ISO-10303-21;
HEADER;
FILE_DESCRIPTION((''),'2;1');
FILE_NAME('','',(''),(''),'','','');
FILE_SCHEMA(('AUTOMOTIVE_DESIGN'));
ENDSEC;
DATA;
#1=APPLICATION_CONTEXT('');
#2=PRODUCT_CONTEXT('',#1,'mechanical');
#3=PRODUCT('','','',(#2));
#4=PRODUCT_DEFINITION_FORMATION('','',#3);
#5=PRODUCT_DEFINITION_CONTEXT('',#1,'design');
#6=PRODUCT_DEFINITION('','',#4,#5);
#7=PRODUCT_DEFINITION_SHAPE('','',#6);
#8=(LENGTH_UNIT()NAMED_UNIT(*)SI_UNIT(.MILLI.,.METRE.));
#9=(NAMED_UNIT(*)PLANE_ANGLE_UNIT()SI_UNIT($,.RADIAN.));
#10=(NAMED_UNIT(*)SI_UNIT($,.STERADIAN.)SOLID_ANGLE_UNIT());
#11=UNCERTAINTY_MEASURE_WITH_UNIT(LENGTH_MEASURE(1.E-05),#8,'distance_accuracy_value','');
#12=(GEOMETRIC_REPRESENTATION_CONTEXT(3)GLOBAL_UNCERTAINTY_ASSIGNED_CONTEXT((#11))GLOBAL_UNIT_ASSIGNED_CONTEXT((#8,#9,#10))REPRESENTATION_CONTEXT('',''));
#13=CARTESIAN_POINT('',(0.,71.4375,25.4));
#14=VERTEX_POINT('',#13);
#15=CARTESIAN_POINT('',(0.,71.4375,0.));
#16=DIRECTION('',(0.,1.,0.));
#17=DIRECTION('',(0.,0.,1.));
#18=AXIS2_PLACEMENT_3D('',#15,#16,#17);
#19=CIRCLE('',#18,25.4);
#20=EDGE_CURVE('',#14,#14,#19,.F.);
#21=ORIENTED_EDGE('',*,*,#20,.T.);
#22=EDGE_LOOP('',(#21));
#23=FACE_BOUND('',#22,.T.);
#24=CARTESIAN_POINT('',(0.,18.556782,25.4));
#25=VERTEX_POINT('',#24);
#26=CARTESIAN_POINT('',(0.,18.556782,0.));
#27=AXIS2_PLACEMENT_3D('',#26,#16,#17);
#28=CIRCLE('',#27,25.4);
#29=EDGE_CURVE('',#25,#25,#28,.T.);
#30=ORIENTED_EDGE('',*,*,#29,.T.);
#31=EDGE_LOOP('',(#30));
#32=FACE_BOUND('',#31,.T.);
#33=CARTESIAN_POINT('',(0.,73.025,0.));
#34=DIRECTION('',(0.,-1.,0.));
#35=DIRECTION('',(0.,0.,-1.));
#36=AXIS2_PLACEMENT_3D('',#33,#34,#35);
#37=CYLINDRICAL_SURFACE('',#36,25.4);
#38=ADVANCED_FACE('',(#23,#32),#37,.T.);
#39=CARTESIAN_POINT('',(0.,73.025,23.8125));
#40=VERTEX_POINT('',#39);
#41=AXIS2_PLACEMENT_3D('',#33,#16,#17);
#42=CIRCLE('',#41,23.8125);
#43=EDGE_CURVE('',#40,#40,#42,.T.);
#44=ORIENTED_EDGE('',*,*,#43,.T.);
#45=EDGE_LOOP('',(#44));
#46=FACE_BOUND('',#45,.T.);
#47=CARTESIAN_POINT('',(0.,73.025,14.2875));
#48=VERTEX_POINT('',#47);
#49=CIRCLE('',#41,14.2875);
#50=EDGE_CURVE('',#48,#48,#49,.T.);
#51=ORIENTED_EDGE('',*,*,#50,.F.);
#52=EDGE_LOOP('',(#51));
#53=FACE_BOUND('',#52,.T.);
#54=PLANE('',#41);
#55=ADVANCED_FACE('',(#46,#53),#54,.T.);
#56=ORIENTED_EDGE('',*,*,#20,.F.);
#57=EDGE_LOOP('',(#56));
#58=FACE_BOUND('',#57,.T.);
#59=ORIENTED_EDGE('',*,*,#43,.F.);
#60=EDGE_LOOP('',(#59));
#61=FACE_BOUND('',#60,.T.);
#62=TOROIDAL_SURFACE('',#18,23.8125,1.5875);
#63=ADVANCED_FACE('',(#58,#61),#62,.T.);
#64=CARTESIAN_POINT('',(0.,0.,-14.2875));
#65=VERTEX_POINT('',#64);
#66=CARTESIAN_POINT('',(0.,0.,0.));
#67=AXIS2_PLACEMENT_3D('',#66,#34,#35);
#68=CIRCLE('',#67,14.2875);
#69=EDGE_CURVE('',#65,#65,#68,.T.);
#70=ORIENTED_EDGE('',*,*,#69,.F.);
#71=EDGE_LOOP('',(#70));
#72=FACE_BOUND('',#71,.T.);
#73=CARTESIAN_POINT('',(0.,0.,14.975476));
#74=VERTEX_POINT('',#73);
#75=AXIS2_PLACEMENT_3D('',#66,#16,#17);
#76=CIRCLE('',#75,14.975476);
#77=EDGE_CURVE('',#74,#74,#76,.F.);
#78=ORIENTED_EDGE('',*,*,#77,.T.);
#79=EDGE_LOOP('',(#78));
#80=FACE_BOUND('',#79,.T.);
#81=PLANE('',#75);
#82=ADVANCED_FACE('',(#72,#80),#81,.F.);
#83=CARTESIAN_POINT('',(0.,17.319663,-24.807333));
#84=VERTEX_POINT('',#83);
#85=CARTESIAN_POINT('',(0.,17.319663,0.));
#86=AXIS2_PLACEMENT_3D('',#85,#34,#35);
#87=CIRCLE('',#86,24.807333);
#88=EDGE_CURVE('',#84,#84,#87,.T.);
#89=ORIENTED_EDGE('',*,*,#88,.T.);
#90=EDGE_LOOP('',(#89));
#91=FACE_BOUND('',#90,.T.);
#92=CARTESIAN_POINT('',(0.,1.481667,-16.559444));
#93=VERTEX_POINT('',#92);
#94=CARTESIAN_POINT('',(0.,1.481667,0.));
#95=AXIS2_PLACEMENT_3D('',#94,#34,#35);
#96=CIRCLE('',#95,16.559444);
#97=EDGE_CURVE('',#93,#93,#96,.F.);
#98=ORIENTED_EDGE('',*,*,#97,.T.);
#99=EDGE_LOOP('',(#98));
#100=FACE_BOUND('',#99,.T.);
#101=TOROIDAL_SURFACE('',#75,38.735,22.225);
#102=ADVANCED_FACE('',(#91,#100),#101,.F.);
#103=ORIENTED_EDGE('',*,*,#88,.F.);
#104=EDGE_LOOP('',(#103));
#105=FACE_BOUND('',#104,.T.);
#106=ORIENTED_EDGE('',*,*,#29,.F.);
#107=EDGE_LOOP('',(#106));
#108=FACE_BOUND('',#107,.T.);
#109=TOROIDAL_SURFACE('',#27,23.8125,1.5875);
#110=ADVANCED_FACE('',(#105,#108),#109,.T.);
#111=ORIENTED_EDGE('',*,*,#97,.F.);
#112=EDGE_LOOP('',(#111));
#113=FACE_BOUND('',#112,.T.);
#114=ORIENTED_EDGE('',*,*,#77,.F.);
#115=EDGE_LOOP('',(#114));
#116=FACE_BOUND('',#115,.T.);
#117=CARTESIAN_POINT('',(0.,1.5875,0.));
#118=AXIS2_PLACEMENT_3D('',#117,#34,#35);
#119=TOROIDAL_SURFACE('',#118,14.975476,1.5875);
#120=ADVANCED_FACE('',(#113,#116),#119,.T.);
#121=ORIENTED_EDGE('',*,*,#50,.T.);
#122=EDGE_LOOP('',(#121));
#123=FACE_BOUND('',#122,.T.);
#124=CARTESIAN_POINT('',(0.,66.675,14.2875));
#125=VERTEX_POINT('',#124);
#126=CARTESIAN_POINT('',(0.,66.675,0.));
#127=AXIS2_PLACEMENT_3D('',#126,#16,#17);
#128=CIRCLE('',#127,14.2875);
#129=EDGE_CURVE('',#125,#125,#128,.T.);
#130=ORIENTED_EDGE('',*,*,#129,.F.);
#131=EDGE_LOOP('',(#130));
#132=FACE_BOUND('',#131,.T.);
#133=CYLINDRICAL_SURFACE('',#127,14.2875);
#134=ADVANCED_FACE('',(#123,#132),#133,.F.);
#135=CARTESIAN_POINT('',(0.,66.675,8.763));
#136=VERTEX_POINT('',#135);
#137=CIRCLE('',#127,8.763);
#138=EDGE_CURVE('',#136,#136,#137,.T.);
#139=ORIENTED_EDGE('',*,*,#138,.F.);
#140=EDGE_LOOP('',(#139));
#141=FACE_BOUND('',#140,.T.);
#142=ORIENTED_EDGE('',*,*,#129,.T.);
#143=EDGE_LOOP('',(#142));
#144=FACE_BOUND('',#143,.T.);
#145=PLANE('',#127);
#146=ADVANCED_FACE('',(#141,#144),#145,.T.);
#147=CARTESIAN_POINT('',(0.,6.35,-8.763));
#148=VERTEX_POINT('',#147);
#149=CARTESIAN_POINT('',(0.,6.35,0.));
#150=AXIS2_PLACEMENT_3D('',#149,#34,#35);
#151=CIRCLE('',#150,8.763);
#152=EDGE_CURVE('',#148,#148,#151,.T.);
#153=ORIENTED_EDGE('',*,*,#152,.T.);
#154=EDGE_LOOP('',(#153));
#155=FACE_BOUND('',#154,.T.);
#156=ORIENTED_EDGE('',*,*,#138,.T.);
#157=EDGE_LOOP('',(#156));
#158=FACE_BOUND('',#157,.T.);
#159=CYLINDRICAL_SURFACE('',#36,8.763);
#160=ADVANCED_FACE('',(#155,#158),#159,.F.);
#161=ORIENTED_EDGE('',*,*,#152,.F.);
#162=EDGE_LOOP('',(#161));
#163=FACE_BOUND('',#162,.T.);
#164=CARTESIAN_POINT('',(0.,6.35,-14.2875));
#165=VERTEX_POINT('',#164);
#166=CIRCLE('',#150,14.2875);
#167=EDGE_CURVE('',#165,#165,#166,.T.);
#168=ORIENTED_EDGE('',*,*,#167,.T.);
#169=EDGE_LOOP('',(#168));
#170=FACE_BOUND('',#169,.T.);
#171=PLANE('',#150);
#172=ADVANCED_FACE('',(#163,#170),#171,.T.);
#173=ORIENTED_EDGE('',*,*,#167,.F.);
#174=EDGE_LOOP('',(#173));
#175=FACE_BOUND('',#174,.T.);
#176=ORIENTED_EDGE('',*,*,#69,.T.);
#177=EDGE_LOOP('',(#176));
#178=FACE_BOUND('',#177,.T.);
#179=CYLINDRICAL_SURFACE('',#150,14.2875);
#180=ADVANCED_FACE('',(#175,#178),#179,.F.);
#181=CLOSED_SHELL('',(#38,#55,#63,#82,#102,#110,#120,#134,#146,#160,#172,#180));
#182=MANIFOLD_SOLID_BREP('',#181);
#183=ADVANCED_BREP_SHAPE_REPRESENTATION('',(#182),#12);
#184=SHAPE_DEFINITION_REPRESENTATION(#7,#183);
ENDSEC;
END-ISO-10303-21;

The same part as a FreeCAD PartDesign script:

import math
import FreeCAD as App
import Part
import Sketcher

V = App.Vector
Q = App.Units.Quantity


def edges_at(feature, points):
    """Names of the edges that pass closest to the given points."""
    edges = feature.Shape.Edges
    near = lambda p: min(range(len(edges)), key=lambda i: edges[i].distToShape(Part.Vertex(*p))[0])
    return sorted({f"Edge{near(p) + 1}" for p in points})

doc = App.newDocument("Part")
body = doc.addObject("PartDesign::Body", "Body")

sketch1 = doc.addObject("Sketcher::SketchObject", "Sketch")
body.addObject(sketch1)
sketch1.AttachmentSupport = (doc.XZ_Plane, [""])
sketch1.MapMode = "FlatFace"
sketch1.addGeometry(Part.Circle(V(0, 0, 0), V(0, 0, 1), 25), False)
sketch1.addConstraint([
    Sketcher.Constraint("Coincident", 0, 3, -1, 1),
    Sketcher.Constraint("Diameter", 0, Q("2 in")),
])
pad1 = doc.addObject("PartDesign::Pad", "Pad")
body.addObject(pad1)
pad1.Profile = sketch1
pad1.Length = Q("2.875 in")
pad1.Reversed = True

sketch2 = doc.addObject("Sketcher::SketchObject", "Sketch001")
body.addObject(sketch2)
sketch2.AttachmentSupport = (doc.XZ_Plane, [""])
sketch2.MapMode = "FlatFace"
sketch2.AttachmentOffset = App.Placement(V(0, 0, -2.875 * 25.4), App.Rotation())
sketch2.addGeometry(Part.Circle(V(0, 0, 0), V(0, 0, 1), 14), False)
sketch2.addConstraint([
    Sketcher.Constraint("Coincident", 0, 3, -1, 1),
    Sketcher.Constraint("Diameter", 0, Q("1.125 in")),
])
pocket1 = doc.addObject("PartDesign::Pocket", "Pocket")
body.addObject(pocket1)
pocket1.Profile = sketch2
pocket1.Length = Q("0.25 in")
pocket1.Reversed = True

sketch3 = doc.addObject("Sketcher::SketchObject", "Sketch002")
body.addObject(sketch3)
sketch3.AttachmentSupport = (doc.XZ_Plane, [""])
sketch3.MapMode = "FlatFace"
sketch3.AttachmentOffset = App.Placement(V(0, 0, -0.25 * 25.4), App.Rotation())
sketch3.addGeometry(Part.Circle(V(0, 0, 0), V(0, 0, 1), 14), False)
sketch3.addConstraint([
    Sketcher.Constraint("Coincident", 0, 3, -1, 1),
    Sketcher.Constraint("Diameter", 0, Q("1.125 in")),
])
pocket2 = doc.addObject("PartDesign::Pocket", "Pocket001")
body.addObject(pocket2)
pocket2.Profile = sketch3
pocket2.Length = Q("0.25 in")
pocket2.Reversed = True

sketch4 = doc.addObject("Sketcher::SketchObject", "Sketch003")
body.addObject(sketch4)
sketch4.AttachmentSupport = (doc.XZ_Plane, [""])
sketch4.MapMode = "FlatFace"
sketch4.AttachmentOffset = App.Placement(V(0, 0, -0.25 * 25.4), App.Rotation())
sketch4.addGeometry(Part.Circle(V(0, 0, 0), V(0, 0, 1), 9), False)
sketch4.addConstraint([
    Sketcher.Constraint("Coincident", 0, 3, -1, 1),
    Sketcher.Constraint("Diameter", 0, Q("0.69 in")),
])
pocket3 = doc.addObject("PartDesign::Pocket", "Pocket002")
body.addObject(pocket3)
pocket3.Profile = sketch4
pocket3.Type = "ThroughAll"
pocket3.Midplane = True

sketch5 = doc.addObject("Sketcher::SketchObject", "Sketch004")
body.addObject(sketch5)
sketch5.AttachmentSupport = (doc.XZ_Plane, [""])
sketch5.MapMode = "FlatFace"
sketch5.addGeometry([
    Part.Circle(V(0, 0, 0), V(0, 0, 1), 25),
    Part.Circle(V(0, 0, 0), V(0, 0, 1), 17),
], False)
sketch5.addConstraint([
    Sketcher.Constraint("Coincident", 0, 3, -1, 1),
    Sketcher.Constraint("Coincident", 1, 3, -1, 1),
    Sketcher.Constraint("Diameter", 0, Q("2 in")),
    Sketcher.Constraint("Diameter", 1, Q("1.3 in")),
])
pocket4 = doc.addObject("PartDesign::Pocket", "Pocket003")
body.addObject(pocket4)
pocket4.Profile = sketch5
pocket4.Length = Q("0.7 in")

sketch6 = doc.addObject("Sketcher::SketchObject", "Sketch005")
body.addObject(sketch6)
sketch6.AttachmentSupport = (doc.XY_Plane, [""])
sketch6.MapMode = "FlatFace"
sketch6.addGeometry([
    Part.LineSegment(V(-17, 18, 0), V(-25, 18, 0)),
    Part.ArcOfCircle(Part.Circle(V(-39, 0, 0), V(0, 0, 1), 22), math.radians(0), math.radians(53)),
    Part.LineSegment(V(-17, 0, 0), V(-17, 18, 0)),
], False)
sketch6.addConstraint([
    Sketcher.Constraint("Coincident", 0, 2, 1, 2),
    Sketcher.Constraint("Tangent", 1, 1, 2, 1),
    Sketcher.Constraint("Coincident", 2, 2, 0, 1),
    Sketcher.Constraint("Horizontal", 0),
    Sketcher.Constraint("Vertical", 2),
    Sketcher.Constraint("PointOnObject", 1, 3, -1),
    Sketcher.Constraint("DistanceY", 2, 1, 2, 2, Q("0.7 in")),
    Sketcher.Constraint("DistanceX", 0, 2, -1, 1, Q("1 in")),
    Sketcher.Constraint("Radius", 1, Q("0.875 in")),
])
revolution = doc.addObject("PartDesign::Revolution", "Revolution")
body.addObject(revolution)
revolution.Profile = sketch6
revolution.ReferenceAxis = (sketch6, ["V_Axis"])
revolution.Angle = 360
doc.recompute()

fillet = doc.addObject("PartDesign::Fillet", "Fillet")
body.addObject(fillet)
fillet.Base = (revolution, edges_at(revolution, [(25.4, 17.78, 0), (0, 0, 16.51), (0, 73.025, -25.4)]))
fillet.Radius = Q("0.0625 in")

doc.recompute()
